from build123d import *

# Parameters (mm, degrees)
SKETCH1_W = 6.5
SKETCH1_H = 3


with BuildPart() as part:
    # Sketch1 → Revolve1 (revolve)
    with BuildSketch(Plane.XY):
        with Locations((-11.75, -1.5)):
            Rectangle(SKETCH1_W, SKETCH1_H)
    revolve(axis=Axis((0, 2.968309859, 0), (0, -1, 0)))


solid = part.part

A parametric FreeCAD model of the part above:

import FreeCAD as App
import Part
import Sketcher

V = App.Vector
Q = App.Units.Quantity

doc = App.newDocument("Part")
body = doc.addObject("PartDesign::Body", "Body")

sketch1 = doc.addObject("Sketcher::SketchObject", "Sketch")
body.addObject(sketch1)
sketch1.AttachmentSupport = (doc.XY_Plane, [""])
sketch1.MapMode = "FlatFace"
sketch1.addGeometry([
    Part.LineSegment(V(-15, 0, 0), V(-15, -3, 0)),
    Part.LineSegment(V(-15, -3, 0), V(-8.5, -3, 0)),
    Part.LineSegment(V(-8.5, -3, 0), V(-8.5, 0, 0)),
    Part.LineSegment(V(-8.5, 0, 0), V(-15, 0, 0)),
], False)
sketch1.addConstraint([
    Sketcher.Constraint("Coincident", 0, 2, 1, 1),
    Sketcher.Constraint("Coincident", 1, 2, 2, 1),
    Sketcher.Constraint("Coincident", 2, 2, 3, 1),
    Sketcher.Constraint("Coincident", 3, 2, 0, 1),
    Sketcher.Constraint("Vertical", 0),
    Sketcher.Constraint("Horizontal", 1),
    Sketcher.Constraint("Vertical", 2),
    Sketcher.Constraint("Horizontal", 3),
    Sketcher.Constraint("PointOnObject", 2, 2, -1),
    Sketcher.Constraint("DistanceY", 0, 2, 0, 1, Q("3 mm")),
    Sketcher.Constraint("DistanceX", 1, 1, 1, 2, Q("6.5 mm")),
    Sketcher.Constraint("DistanceX", 0, 2, -1, 1, Q("15 mm")),
])
revolution = doc.addObject("PartDesign::Revolution", "Revolution")
body.addObject(revolution)
revolution.Profile = sketch1
revolution.ReferenceAxis = (sketch1, ["V_Axis"])
revolution.Angle = 360

doc.recompute()
